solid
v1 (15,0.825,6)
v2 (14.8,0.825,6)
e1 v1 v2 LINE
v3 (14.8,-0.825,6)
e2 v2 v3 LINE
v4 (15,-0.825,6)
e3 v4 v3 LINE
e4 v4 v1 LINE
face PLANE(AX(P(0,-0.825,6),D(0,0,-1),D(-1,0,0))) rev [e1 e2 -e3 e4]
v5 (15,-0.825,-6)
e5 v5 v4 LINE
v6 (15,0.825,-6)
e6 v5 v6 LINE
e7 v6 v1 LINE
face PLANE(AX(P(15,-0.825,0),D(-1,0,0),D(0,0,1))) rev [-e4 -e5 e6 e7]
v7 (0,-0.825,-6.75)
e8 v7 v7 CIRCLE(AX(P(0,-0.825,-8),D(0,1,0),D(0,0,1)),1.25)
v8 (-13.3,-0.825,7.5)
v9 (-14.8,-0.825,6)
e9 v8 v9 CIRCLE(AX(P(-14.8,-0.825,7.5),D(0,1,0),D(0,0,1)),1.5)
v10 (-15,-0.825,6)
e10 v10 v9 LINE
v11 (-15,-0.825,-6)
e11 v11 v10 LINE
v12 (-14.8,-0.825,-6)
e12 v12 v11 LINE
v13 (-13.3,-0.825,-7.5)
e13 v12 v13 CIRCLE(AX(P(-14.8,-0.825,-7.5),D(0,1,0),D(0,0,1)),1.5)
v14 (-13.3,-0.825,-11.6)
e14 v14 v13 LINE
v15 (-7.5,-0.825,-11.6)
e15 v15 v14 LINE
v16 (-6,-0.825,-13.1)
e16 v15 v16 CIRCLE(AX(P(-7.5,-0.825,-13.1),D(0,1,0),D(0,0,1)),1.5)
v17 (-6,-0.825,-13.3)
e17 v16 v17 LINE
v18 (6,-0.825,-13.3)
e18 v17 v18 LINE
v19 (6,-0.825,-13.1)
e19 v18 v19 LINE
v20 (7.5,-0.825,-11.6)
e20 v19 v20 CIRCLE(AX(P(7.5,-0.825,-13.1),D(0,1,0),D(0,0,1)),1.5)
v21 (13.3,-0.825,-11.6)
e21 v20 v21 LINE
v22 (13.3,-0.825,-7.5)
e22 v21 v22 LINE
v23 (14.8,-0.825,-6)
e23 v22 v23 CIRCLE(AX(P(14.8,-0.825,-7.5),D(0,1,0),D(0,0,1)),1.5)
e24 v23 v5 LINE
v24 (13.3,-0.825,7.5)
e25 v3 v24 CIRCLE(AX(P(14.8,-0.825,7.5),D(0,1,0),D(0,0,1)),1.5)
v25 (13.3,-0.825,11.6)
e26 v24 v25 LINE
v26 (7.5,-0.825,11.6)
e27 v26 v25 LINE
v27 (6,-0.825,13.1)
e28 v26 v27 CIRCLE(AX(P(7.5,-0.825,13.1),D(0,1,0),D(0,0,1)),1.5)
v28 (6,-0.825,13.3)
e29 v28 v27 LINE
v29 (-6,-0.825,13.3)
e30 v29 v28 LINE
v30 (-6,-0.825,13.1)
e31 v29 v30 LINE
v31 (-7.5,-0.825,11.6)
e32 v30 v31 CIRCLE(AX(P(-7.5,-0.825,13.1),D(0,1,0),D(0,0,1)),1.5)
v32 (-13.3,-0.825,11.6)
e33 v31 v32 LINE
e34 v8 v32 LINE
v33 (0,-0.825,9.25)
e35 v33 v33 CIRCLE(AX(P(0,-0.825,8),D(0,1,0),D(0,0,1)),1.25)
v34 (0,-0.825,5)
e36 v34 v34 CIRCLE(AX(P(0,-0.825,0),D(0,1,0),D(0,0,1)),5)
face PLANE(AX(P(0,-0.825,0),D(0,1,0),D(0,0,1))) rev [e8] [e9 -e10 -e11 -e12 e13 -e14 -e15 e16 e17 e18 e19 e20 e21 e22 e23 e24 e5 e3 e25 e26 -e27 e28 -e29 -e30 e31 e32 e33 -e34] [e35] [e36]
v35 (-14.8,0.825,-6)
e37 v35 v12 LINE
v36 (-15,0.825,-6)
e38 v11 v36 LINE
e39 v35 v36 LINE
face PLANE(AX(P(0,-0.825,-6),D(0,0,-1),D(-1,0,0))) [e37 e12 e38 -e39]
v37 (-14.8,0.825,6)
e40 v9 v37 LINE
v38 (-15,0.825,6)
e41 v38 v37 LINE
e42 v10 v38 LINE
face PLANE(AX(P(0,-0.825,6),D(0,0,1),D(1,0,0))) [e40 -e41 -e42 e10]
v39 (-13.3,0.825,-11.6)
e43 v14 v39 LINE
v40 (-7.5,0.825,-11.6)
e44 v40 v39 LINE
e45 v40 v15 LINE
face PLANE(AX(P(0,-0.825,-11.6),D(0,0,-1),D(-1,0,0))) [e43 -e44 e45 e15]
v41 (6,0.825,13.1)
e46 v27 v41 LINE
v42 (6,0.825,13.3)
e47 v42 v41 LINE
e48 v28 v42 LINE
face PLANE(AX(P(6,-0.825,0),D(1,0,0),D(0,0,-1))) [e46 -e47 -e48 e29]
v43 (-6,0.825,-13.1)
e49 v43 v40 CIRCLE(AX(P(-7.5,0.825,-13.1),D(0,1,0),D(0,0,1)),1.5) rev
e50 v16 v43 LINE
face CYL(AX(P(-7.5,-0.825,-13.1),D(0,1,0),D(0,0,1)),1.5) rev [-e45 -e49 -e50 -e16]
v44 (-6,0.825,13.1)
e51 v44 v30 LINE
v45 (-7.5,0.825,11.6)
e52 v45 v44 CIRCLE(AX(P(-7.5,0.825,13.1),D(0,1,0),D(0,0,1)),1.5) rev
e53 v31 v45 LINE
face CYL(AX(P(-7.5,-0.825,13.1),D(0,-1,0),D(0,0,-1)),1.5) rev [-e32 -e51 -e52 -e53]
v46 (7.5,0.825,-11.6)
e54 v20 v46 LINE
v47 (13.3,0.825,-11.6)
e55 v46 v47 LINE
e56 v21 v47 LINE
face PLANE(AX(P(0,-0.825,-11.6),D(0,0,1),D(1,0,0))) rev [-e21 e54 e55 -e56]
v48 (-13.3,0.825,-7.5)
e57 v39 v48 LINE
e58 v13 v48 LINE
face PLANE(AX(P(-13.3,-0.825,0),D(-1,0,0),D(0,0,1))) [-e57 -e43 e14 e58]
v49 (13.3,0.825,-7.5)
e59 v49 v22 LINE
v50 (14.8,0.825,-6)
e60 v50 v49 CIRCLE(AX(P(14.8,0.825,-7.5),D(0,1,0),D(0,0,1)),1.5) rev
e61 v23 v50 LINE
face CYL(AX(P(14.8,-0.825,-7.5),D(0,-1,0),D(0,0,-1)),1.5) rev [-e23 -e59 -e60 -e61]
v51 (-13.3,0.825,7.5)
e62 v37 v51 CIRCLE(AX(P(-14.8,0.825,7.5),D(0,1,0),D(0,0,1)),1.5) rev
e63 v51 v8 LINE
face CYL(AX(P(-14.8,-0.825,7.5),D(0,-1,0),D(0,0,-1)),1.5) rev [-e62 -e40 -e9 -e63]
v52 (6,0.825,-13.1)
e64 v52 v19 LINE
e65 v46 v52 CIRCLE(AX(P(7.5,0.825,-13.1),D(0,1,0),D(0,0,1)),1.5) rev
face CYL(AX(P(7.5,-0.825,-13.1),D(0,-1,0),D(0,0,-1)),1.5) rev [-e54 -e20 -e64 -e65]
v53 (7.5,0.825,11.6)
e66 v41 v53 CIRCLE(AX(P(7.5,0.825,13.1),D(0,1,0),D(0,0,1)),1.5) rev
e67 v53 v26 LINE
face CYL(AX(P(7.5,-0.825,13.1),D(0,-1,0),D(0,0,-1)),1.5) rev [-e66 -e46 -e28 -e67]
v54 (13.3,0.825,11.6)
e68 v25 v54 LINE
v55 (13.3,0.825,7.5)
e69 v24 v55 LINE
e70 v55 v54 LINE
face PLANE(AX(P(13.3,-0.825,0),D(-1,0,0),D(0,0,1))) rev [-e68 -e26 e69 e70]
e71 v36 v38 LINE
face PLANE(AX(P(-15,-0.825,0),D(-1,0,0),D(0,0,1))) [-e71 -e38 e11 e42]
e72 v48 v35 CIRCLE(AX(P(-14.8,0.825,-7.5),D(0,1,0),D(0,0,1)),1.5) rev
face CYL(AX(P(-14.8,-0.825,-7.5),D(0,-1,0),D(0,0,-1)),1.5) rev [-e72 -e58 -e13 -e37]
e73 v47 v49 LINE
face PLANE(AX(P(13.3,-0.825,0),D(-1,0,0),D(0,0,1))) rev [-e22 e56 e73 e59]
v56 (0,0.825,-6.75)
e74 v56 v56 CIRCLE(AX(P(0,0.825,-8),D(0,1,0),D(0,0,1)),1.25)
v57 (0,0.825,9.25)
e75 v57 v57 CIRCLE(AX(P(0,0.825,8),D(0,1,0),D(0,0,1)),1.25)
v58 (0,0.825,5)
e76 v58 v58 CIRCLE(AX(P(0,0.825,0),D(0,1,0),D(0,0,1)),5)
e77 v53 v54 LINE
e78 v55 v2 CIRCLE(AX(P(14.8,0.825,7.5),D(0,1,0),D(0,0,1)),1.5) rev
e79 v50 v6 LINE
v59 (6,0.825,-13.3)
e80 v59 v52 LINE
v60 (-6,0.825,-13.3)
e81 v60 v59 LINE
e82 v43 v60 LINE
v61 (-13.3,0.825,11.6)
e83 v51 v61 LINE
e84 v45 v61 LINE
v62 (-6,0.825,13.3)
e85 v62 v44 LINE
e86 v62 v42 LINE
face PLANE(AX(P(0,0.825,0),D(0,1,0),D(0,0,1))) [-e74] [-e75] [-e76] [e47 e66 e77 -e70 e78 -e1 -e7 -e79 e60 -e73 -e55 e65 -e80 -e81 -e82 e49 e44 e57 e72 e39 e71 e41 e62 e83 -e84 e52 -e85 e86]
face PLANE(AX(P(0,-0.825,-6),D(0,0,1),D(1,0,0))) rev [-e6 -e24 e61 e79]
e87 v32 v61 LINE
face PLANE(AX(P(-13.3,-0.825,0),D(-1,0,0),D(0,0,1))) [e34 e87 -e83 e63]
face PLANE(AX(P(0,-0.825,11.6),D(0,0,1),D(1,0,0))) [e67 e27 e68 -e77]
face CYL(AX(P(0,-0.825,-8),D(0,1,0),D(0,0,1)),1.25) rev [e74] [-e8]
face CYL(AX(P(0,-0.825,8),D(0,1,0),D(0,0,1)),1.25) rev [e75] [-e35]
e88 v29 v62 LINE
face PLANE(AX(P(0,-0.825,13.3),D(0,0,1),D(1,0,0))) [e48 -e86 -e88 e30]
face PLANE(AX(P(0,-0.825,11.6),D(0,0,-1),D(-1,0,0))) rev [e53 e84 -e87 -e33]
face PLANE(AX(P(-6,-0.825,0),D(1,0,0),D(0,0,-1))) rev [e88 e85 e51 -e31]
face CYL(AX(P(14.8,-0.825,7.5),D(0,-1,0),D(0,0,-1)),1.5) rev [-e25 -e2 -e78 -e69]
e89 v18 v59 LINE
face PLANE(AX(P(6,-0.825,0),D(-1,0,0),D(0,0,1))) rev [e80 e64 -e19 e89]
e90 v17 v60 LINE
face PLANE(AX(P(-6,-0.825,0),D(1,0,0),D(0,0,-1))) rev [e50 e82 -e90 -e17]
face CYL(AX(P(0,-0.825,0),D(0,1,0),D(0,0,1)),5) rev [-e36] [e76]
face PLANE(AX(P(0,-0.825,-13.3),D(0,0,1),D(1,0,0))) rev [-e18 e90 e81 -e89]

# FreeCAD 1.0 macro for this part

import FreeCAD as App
import Part
import Sketcher
from FreeCAD import Vector
Q = App.Units.Quantity


def edges_at(feature, points):
    """Names of the edges that pass closest to the given points."""
    edges = feature.Shape.Edges
    near = lambda p: min(range(len(edges)), key=lambda i: edges[i].distToShape(Part.Vertex(*p))[0])
    return sorted({f"Edge{near(p) + 1}" for p in points})

doc = App.newDocument("Part")
body = doc.addObject("PartDesign::Body", "Body")

sketch1 = body.newObject("Sketcher::SketchObject", "Sketch")
sketch1.AttachmentSupport = (doc.getObject("XZ_Plane"), [""])
sketch1.MapMode = "FlatFace"
sketch1.addGeometry([
    Part.LineSegment(Vector(-13.3, 6, 0), Vector(-13.3, 11.6, 0)),
    Part.LineSegment(Vector(-13.3, 11.6, 0), Vector(-6, 11.6, 0)),
    Part.LineSegment(Vector(-6, 11.6, 0), Vector(-6, 13.3, 0)),
    Part.LineSegment(Vector(-6, 13.3, 0), Vector(6, 13.3, 0)),
    Part.LineSegment(Vector(6, 13.3, 0), Vector(6, 11.6, 0)),
    Part.LineSegment(Vector(6, 11.6, 0), Vector(13.3, 11.6, 0)),
    Part.LineSegment(Vector(13.3, 11.6, 0), Vector(13.3, 6, 0)),
    Part.LineSegment(Vector(13.3, 6, 0), Vector(15, 6, 0)),
    Part.LineSegment(Vector(15, 6, 0), Vector(15, -6, 0)),
    Part.LineSegment(Vector(15, -6, 0), Vector(13.3, -6, 0)),
    Part.LineSegment(Vector(13.3, -6, 0), Vector(13.3, -11.6, 0)),
    Part.LineSegment(Vector(13.3, -11.6, 0), Vector(6, -11.6, 0)),
    Part.LineSegment(Vector(6, -11.6, 0), Vector(6, -13.3, 0)),
    Part.LineSegment(Vector(6, -13.3, 0), Vector(-6, -13.3, 0)),
    Part.LineSegment(Vector(-6, -13.3, 0), Vector(-6, -11.6, 0)),
    Part.LineSegment(Vector(-6, -11.6, 0), Vector(-13.3, -11.6, 0)),
    Part.LineSegment(Vector(-13.3, -11.6, 0), Vector(-13.3, -6, 0)),
    Part.LineSegment(Vector(-13.3, -6, 0), Vector(-15, -6, 0)),
    Part.LineSegment(Vector(-15, -6, 0), Vector(-15, 6, 0)),
    Part.LineSegment(Vector(-15, 6, 0), Vector(-13.3, 6, 0)),
    Part.Circle(Vector(0, 8, 0), Vector(0, 0, 1), 1.2),
    Part.Circle(Vector(0, 0, 0), Vector(0, 0, 1), 5),
    Part.Circle(Vector(0, -8, 0), Vector(0, 0, 1), 1.2),
], False)
sketch1.addConstraint([
    Sketcher.Constraint("Coincident", 0, 2, 1, 1),
    Sketcher.Constraint("Coincident", 1, 2, 2, 1),
    Sketcher.Constraint("Coincident", 2, 2, 3, 1),
    Sketcher.Constraint("Coincident", 3, 2, 4, 1),
    Sketcher.Constraint("Coincident", 4, 2, 5, 1),
    Sketcher.Constraint("Coincident", 5, 2, 6, 1),
    Sketcher.Constraint("Coincident", 6, 2, 7, 1),
    Sketcher.Constraint("Coincident", 7, 2, 8, 1),
    Sketcher.Constraint("Coincident", 8, 2, 9, 1),
    Sketcher.Constraint("Coincident", 9, 2, 10, 1),
    Sketcher.Constraint("Coincident", 10, 2, 11, 1),
    Sketcher.Constraint("Coincident", 11, 2, 12, 1),
    Sketcher.Constraint("Coincident", 12, 2, 13, 1),
    Sketcher.Constraint("Coincident", 13, 2, 14, 1),
    Sketcher.Constraint("Coincident", 14, 2, 15, 1),
    Sketcher.Constraint("Coincident", 15, 2, 16, 1),
    Sketcher.Constraint("Coincident", 16, 2, 17, 1),
    Sketcher.Constraint("Coincident", 17, 2, 18, 1),
    Sketcher.Constraint("Coincident", 18, 2, 19, 1),
    Sketcher.Constraint("Coincident", 19, 2, 0, 1),
    Sketcher.Constraint("Vertical", 0),
    Sketcher.Constraint("Horizontal", 1),
    Sketcher.Constraint("Vertical", 2),
    Sketcher.Constraint("Horizontal", 3),
    Sketcher.Constraint("Vertical", 4),
    Sketcher.Constraint("Horizontal", 5),
    Sketcher.Constraint("Vertical", 6),
    Sketcher.Constraint("Horizontal", 7),
    Sketcher.Constraint("Vertical", 8),
    Sketcher.Constraint("Horizontal", 9),
    Sketcher.Constraint("Vertical", 10),
    Sketcher.Constraint("Horizontal", 11),
    Sketcher.Constraint("Vertical", 12),
    Sketcher.Constraint("Horizontal", 13),
    Sketcher.Constraint("Vertical", 14),
    Sketcher.Constraint("Horizontal", 15),
    Sketcher.Constraint("Vertical", 16),
    Sketcher.Constraint("Horizontal", 17),
    Sketcher.Constraint("Vertical", 18),
    Sketcher.Constraint("Horizontal", 19),
    Sketcher.Constraint("Coincident", 21, 3, -1, 1),
    Sketcher.Constraint("Equal", 20, 22),
    Sketcher.Constraint("Symmetric", 20, 3, 22, 3, -1, 1),
    Sketcher.Constraint("Symmetric", 0, 2, 10, 2, -1, 1),
    Sketcher.Constraint("Symmetric", 2, 2, 12, 2, -1, 1),
    Sketcher.Constraint("Symmetric", 4, 2, 14, 2, -1, 1),
    Sketcher.Constraint("Symmetric", 6, 2, 16, 2, -1, 1),
    Sketcher.Constraint("Symmetric", 8, 2, 18, 2, -1, 1),
    Sketcher.Constraint("Symmetric", 1, 2, 4, 2, -2),
    Sketcher.Constraint("Symmetric", 9, 2, 16, 2, -2),
    Sketcher.Constraint("PointOnObject", 20, 3, -2),
    Sketcher.Constraint("Equal", 19, 2),
    Sketcher.Constraint("Equal", 13, 8),
    Sketcher.Constraint("Diameter", 21, Q("10 mm")),
    Sketcher.Constraint("Diameter", 20, Q("2.5 mm")),
    Sketcher.Constraint("DistanceX", 3, 1, 3, 2, Q("12 mm")),
    Sketcher.Constraint("DistanceX", 1, 1, 1, 2, Q("7.3 mm")),
    Sketcher.Constraint("DistanceX", 7, 1, 7, 2, Q("1.7 mm")),
    Sketcher.Constraint("DistanceY", 0, 1, 0, 2, Q("5.6 mm")),
    Sketcher.Constraint("DistanceY", -1, 1, 20, 3, Q("8 mm")),
])
pad1 = body.newObject("PartDesign::Pad", "Pad")
pad1.Profile = sketch1
pad1.Length = 1.65
pad1.Midplane = True
doc.recompute()

fillet = body.newObject("PartDesign::Fillet", "Fillet")
fillet.Base = (pad1, edges_at(pad1, [
    (-6, 0, 11.6),
    (-13.3, 0, 6),
    (-13.3, 0, -6),
    (-6, 0, -11.6),
    (6, 0, -11.6),
    (13.3, 0, -6),
    (13.3, 0, 6),
    (6, 0, 11.6),
]))
fillet.Radius = 1.5

doc.recompute()
